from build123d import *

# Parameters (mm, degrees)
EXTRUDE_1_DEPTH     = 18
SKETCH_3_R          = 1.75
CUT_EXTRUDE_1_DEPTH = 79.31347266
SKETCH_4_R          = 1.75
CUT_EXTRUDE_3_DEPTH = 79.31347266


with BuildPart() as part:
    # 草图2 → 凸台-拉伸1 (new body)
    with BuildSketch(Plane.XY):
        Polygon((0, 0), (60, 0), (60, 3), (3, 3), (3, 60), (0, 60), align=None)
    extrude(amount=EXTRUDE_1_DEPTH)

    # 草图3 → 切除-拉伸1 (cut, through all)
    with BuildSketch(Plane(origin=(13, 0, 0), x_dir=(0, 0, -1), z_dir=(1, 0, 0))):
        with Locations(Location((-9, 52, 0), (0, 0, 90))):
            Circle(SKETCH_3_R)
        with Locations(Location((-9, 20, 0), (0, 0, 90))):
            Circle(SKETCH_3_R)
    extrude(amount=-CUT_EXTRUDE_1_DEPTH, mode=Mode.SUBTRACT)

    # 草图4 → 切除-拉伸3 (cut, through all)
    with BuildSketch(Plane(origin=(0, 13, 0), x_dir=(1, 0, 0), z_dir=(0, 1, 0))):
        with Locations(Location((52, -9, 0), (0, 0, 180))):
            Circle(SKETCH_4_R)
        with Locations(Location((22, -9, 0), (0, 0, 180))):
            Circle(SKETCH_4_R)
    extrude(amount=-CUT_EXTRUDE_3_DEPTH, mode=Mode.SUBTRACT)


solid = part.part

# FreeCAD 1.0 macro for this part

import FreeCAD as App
import Part
import Sketcher
from FreeCAD import Vector


def add_polygon(sketch, points):
    """Adds a closed chain of lines whose ends are joined by coincident constraints."""
    first, n = sketch.GeometryCount, len(points)
    for a, b in zip(points, points[1:] + points[:1]):
        sketch.addGeometry(Part.LineSegment(App.Vector(*a, 0), App.Vector(*b, 0)), False)
    for i in range(n):
        sketch.addConstraint(Sketcher.Constraint("Coincident", first + i, 2, first + (i + 1) % n, 1))

doc = App.newDocument("Part")
body = doc.addObject("PartDesign::Body", "Body")

# Sketch on XY plane
sketch1 = body.newObject("Sketcher::SketchObject", "Sketch")
sketch1.AttachmentSupport = (doc.getObject("XY_Plane"), [""])
sketch1.MapMode = "FlatFace"
add_polygon(sketch1, [(0, 0), (60, 0), (60, 3), (3, 3), (3, 60), (0, 60)])  # lines 0-5
sketch1.addConstraint(Sketcher.Constraint("Horizontal", 0))
sketch1.addConstraint(Sketcher.Constraint("Vertical", 1))
sketch1.addConstraint(Sketcher.Constraint("Horizontal", 2))
sketch1.addConstraint(Sketcher.Constraint("Vertical", 3))
sketch1.addConstraint(Sketcher.Constraint("Horizontal", 4))
sketch1.addConstraint(Sketcher.Constraint("Vertical", 5))
sketch1.addConstraint(Sketcher.Constraint("Coincident", 5, 2, -1, 1))
sketch1.addConstraint(Sketcher.Constraint("Equal", 4, 1))
sketch1.addConstraint(Sketcher.Constraint("Equal", 2, 3))
sketch1.addConstraint(Sketcher.Constraint("DistanceX", 0, 1, 0, 2, 60.0))
sketch1.addConstraint(Sketcher.Constraint("DistanceX", 2, 2, 2, 1, 57.0))
pad1 = body.newObject("PartDesign::Pad", "Pad")
pad1.Profile = sketch1
pad1.Length = 18

# Sketch on YZ plane
sketch2 = body.newObject("Sketcher::SketchObject", "Sketch001")
sketch2.AttachmentSupport = (doc.getObject("YZ_Plane"), [""])
sketch2.MapMode = "FlatFace"
sketch2.AttachmentOffset = App.Placement(Vector(0, 0, 13), App.Rotation())
sketch2.addGeometry(Part.Circle(Vector(52, 9, 0), Vector(0, 0, 1), 1.8), False)
sketch2.addGeometry(Part.Circle(Vector(20, 9, 0), Vector(0, 0, 1), 1.8), False)
sketch2.addConstraint(Sketcher.Constraint("Equal", 0, 1))
sketch2.addConstraint(Sketcher.Constraint("Horizontal", 0, 3, 1, 3))
sketch2.addConstraint(Sketcher.Constraint("Diameter", 0, 3.5))
sketch2.addConstraint(Sketcher.Constraint("DistanceX", -1, 1, 0, 3, 52.0))
sketch2.addConstraint(Sketcher.Constraint("DistanceY", -1, 1, 0, 3, 9.0))
sketch2.addConstraint(Sketcher.Constraint("DistanceX", -1, 1, 1, 3, 20.0))
pocket1 = body.newObject("PartDesign::Pocket", "Pocket")
pocket1.Profile = sketch2
pocket1.Type = "ThroughAll"

# Sketch on XZ plane
sketch3 = body.newObject("Sketcher::SketchObject", "Sketch002")
sketch3.AttachmentSupport = (doc.getObject("XZ_Plane"), [""])
sketch3.MapMode = "FlatFace"
sketch3.AttachmentOffset = App.Placement(Vector(0, 0, -13), App.Rotation())
sketch3.addGeometry(Part.Circle(Vector(52, 9, 0), Vector(0, 0, 1), 1.8), False)
sketch3.addGeometry(Part.Circle(Vector(22, 9, 0), Vector(0, 0, 1), 1.8), False)
sketch3.addConstraint(Sketcher.Constraint("Equal", 0, 1))
sketch3.addConstraint(Sketcher.Constraint("Horizontal", 0, 3, 1, 3))
sketch3.addConstraint(Sketcher.Constraint("Diameter", 0, 3.5))
sketch3.addConstraint(Sketcher.Constraint("DistanceX", -1, 1, 0, 3, 52.0))
sketch3.addConstraint(Sketcher.Constraint("DistanceY", -1, 1, 0, 3, 9.0))
sketch3.addConstraint(Sketcher.Constraint("DistanceX", -1, 1, 1, 3, 22.0))
pocket2 = body.newObject("PartDesign::Pocket", "Pocket001")
pocket2.Profile = sketch3
pocket2.Type = "ThroughAll"
pocket2.Reversed = True

doc.recompute()
